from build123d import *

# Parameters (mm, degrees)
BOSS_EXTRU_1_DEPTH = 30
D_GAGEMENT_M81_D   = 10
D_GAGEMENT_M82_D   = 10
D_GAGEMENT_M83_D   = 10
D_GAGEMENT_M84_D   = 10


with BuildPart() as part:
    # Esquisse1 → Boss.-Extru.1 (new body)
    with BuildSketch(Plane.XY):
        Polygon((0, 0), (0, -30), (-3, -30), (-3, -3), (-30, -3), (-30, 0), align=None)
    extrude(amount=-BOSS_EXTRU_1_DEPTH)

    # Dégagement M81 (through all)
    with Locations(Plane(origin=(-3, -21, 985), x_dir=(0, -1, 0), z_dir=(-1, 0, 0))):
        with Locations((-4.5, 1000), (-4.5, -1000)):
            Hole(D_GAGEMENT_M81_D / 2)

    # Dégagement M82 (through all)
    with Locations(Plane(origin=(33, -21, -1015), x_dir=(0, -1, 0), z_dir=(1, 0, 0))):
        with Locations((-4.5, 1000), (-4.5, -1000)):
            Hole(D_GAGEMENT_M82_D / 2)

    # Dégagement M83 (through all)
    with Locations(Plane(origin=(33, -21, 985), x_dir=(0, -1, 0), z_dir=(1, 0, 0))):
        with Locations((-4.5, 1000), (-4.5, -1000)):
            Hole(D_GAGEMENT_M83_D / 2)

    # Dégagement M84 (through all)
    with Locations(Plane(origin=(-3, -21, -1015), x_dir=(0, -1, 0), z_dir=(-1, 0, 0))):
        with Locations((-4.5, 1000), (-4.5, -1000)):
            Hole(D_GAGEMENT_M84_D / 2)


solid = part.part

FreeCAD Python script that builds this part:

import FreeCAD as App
import Part
import Sketcher

V = App.Vector
Q = App.Units.Quantity

doc = App.newDocument("Part")
body = doc.addObject("PartDesign::Body", "Body")

sketch1 = doc.addObject("Sketcher::SketchObject", "Sketch")
body.addObject(sketch1)
sketch1.AttachmentSupport = (doc.XY_Plane, [""])
sketch1.MapMode = "FlatFace"
sketch1.addGeometry(Part.LineSegment(V(0, -30, 0), V(0, 0, 0)), False)
sketch1.addGeometry(Part.LineSegment(V(0, 0, 0), V(-30, 0, 0)), False)
sketch1.addGeometry(Part.LineSegment(V(-30, 0, 0), V(-30, -3, 0)), False)
sketch1.addGeometry(Part.LineSegment(V(-30, -3, 0), V(-3, -3, 0)), False)
sketch1.addGeometry(Part.LineSegment(V(-3, -3, 0), V(-3, -30, 0)), False)
sketch1.addGeometry(Part.LineSegment(V(-3, -30, 0), V(0, -30, 0)), False)
sketch1.addConstraint(Sketcher.Constraint("Coincident", 0, 2, 1, 1))
sketch1.addConstraint(Sketcher.Constraint("Coincident", 1, 2, 2, 1))
sketch1.addConstraint(Sketcher.Constraint("Coincident", 2, 2, 3, 1))
sketch1.addConstraint(Sketcher.Constraint("Coincident", 3, 2, 4, 1))
sketch1.addConstraint(Sketcher.Constraint("Coincident", 4, 2, 5, 1))
sketch1.addConstraint(Sketcher.Constraint("Coincident", 5, 2, 0, 1))
sketch1.addConstraint(Sketcher.Constraint("Vertical", 0))
sketch1.addConstraint(Sketcher.Constraint("Horizontal", 1))
sketch1.addConstraint(Sketcher.Constraint("Vertical", 2))
sketch1.addConstraint(Sketcher.Constraint("Horizontal", 3))
sketch1.addConstraint(Sketcher.Constraint("Vertical", 4))
sketch1.addConstraint(Sketcher.Constraint("Horizontal", 5))
sketch1.addConstraint(Sketcher.Constraint("Coincident", 0, 2, -1, 1))
sketch1.addConstraint(Sketcher.Constraint("Equal", 1, 0))
sketch1.addConstraint(Sketcher.Constraint("Equal", 5, 2))
sketch1.addConstraint(Sketcher.Constraint("DistanceX", 1, 2, 1, 1, Q("30 mm")))
sketch1.addConstraint(Sketcher.Constraint("DistanceX", 3, 1, 3, 2, Q("27 mm")))
pad1 = doc.addObject("PartDesign::Pad", "Pad")
body.addObject(pad1)
pad1.Profile = sketch1
pad1.Length = 30
pad1.Reversed = True

sketch2 = doc.addObject("Sketcher::SketchObject", "Sketch001")
body.addObject(sketch2)
sketch2.AttachmentSupport = (doc.YZ_Plane, [""])
sketch2.MapMode = "FlatFace"
sketch2.AttachmentOffset = App.Placement(V(0, 0, -3), App.Rotation())
sketch2.addGeometry(Part.Circle(V(-16, 1985, 0), V(0, 0, 1), 5), False)
sketch2.addGeometry(Part.Circle(V(-16, -15, 0), V(0, 0, 1), 5), False)
sketch2.addConstraint(Sketcher.Constraint("Equal", 0, 1))
sketch2.addConstraint(Sketcher.Constraint("Vertical", 0, 3, 1, 3))
sketch2.addConstraint(Sketcher.Constraint("Diameter", 0, Q("10 mm")))
sketch2.addConstraint(Sketcher.Constraint("DistanceY", -1, 1, 0, 3, Q("1985 mm")))
sketch2.addConstraint(Sketcher.Constraint("DistanceY", 1, 3, -1, 1, Q("15 mm")))
sketch2.addConstraint(Sketcher.Constraint("DistanceX", 0, 3, -1, 1, Q("16.5 mm")))
doc.recompute()
hole = doc.addObject("PartDesign::Hole", "Hole")
body.addObject(hole)
hole.Profile = sketch2
hole.ThreadType = "None"
hole.Diameter = 10
hole.DepthType = "ThroughAll"
hole.Reversed = True

sketch3 = doc.addObject("Sketcher::SketchObject", "Sketch002")
body.addObject(sketch3)
sketch3.AttachmentSupport = (doc.YZ_Plane, [""])
sketch3.MapMode = "FlatFace"
sketch3.AttachmentOffset = App.Placement(V(0, 0, 33), App.Rotation())
sketch3.addGeometry(Part.Circle(V(-16, -2015, 0), V(0, 0, 1), 5), False)
sketch3.addGeometry(Part.Circle(V(-16, -15, 0), V(0, 0, 1), 5), False)
sketch3.addConstraint(Sketcher.Constraint("Equal", 0, 1))
sketch3.addConstraint(Sketcher.Constraint("Vertical", 0, 3, 1, 3))
sketch3.addConstraint(Sketcher.Constraint("Diameter", 0, Q("10 mm")))
sketch3.addConstraint(Sketcher.Constraint("DistanceY", 0, 3, -1, 1, Q("2015 mm")))
sketch3.addConstraint(Sketcher.Constraint("DistanceY", 1, 3, -1, 1, Q("15 mm")))
sketch3.addConstraint(Sketcher.Constraint("DistanceX", 0, 3, -1, 1, Q("16.5 mm")))
doc.recompute()
hole2 = doc.addObject("PartDesign::Hole", "Hole001")
body.addObject(hole2)
hole2.Profile = sketch3
hole2.ThreadType = "None"
hole2.Diameter = 10
hole2.DepthType = "ThroughAll"

sketch4 = doc.addObject("Sketcher::SketchObject", "Sketch003")
body.addObject(sketch4)
sketch4.AttachmentSupport = (doc.YZ_Plane, [""])
sketch4.MapMode = "FlatFace"
sketch4.AttachmentOffset = App.Placement(V(0, 0, 33), App.Rotation())
sketch4.addGeometry(Part.Circle(V(-16, -15, 0), V(0, 0, 1), 5), False)
sketch4.addGeometry(Part.Circle(V(-16, 1985, 0), V(0, 0, 1), 5), False)
sketch4.addConstraint(Sketcher.Constraint("Equal", 0, 1))
sketch4.addConstraint(Sketcher.Constraint("Vertical", 0, 3, 1, 3))
sketch4.addConstraint(Sketcher.Constraint("Diameter", 0, Q("10 mm")))
sketch4.addConstraint(Sketcher.Constraint("DistanceY", 0, 3, -1, 1, Q("15 mm")))
sketch4.addConstraint(Sketcher.Constraint("DistanceY", -1, 1, 1, 3, Q("1985 mm")))
sketch4.addConstraint(Sketcher.Constraint("DistanceX", 0, 3, -1, 1, Q("16.5 mm")))
doc.recompute()
hole3 = doc.addObject("PartDesign::Hole", "Hole002")
body.addObject(hole3)
hole3.Profile = sketch4
hole3.ThreadType = "None"
hole3.Diameter = 10
hole3.DepthType = "ThroughAll"

sketch5 = doc.addObject("Sketcher::SketchObject", "Sketch004")
body.addObject(sketch5)
sketch5.AttachmentSupport = (doc.YZ_Plane, [""])
sketch5.MapMode = "FlatFace"
sketch5.AttachmentOffset = App.Placement(V(0, 0, -3), App.Rotation())
sketch5.addGeometry(Part.Circle(V(-16, -15, 0), V(0, 0, 1), 5), False)
sketch5.addGeometry(Part.Circle(V(-16, -2015, 0), V(0, 0, 1), 5), False)
sketch5.addConstraint(Sketcher.Constraint("Equal", 0, 1))
sketch5.addConstraint(Sketcher.Constraint("Vertical", 0, 3, 1, 3))
sketch5.addConstraint(Sketcher.Constraint("Diameter", 0, Q("10 mm")))
sketch5.addConstraint(Sketcher.Constraint("DistanceY", 0, 3, -1, 1, Q("15 mm")))
sketch5.addConstraint(Sketcher.Constraint("DistanceY", 1, 3, -1, 1, Q("2015 mm")))
sketch5.addConstraint(Sketcher.Constraint("DistanceX", 0, 3, -1, 1, Q("16.5 mm")))
doc.recompute()
hole4 = doc.addObject("PartDesign::Hole", "Hole003")
body.addObject(hole4)
hole4.Profile = sketch5
hole4.ThreadType = "None"
hole4.Diameter = 10
hole4.DepthType = "ThroughAll"
hole4.Reversed = True

doc.recompute()
